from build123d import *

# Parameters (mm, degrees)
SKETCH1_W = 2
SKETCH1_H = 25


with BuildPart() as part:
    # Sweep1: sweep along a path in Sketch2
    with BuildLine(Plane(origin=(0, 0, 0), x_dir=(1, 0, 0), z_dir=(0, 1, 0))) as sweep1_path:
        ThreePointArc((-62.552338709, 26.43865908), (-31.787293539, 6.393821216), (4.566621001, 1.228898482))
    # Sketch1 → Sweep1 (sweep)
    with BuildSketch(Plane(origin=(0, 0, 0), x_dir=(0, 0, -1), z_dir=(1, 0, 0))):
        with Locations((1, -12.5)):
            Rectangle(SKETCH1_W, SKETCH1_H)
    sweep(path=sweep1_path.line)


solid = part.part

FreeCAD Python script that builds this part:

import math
import FreeCAD as App
import Part
import Sketcher

doc = App.newDocument("Part")
params = doc.addObject("Spreadsheet::Sheet", "Params")
for row, (alias, value) in enumerate([
    ("sketch1_width", "25 mm"),
    ("sketch1_height", "2 mm"),
], start=1):
    params.set(f"A{row}", alias)
    params.set(f"B{row}", "=" + value)
    params.setAlias(f"B{row}", alias)

body = doc.addObject("PartDesign::Body", "Body")

# Sketch on YZ plane
sketch1 = body.newObject("Sketcher::SketchObject", "Sketch")
sketch1.AttachmentSupport = (doc.getObject("YZ_Plane"), [""])
sketch1.MapMode = "FlatFace"
sketch1.addGeometry([
    Part.LineSegment(App.Vector(0, 0, 0), App.Vector(-25, 0, 0)),
    Part.LineSegment(App.Vector(-25, 0, 0), App.Vector(-25, -2, 0)),
    Part.LineSegment(App.Vector(-25, -2, 0), App.Vector(0, -2, 0)),
    Part.LineSegment(App.Vector(0, -2, 0), App.Vector(0, 0, 0)),
], False)
sketch1.addConstraint([
    Sketcher.Constraint("Coincident", 0, 2, 1, 1),
    Sketcher.Constraint("Coincident", 1, 2, 2, 1),
    Sketcher.Constraint("Coincident", 2, 2, 3, 1),
    Sketcher.Constraint("Coincident", 3, 2, 0, 1),
    Sketcher.Constraint("Horizontal", 0),
    Sketcher.Constraint("Vertical", 1),
    Sketcher.Constraint("Horizontal", 2),
    Sketcher.Constraint("Vertical", 3),
    Sketcher.Constraint("Coincident", 3, 2, -1, 1),
    Sketcher.Constraint("DistanceX", 0, 2, 0, 1, 25.0),
    Sketcher.Constraint("DistanceY", 1, 2, 1, 1, 2.0),
])
sketch1.setExpression("Constraints[9]", "Params.sketch1_width")
sketch1.setExpression("Constraints[10]", "Params.sketch1_height")

# Sketch on XZ plane
sketch2 = body.newObject("Sketcher::SketchObject", "Sketch001")
sketch2.AttachmentSupport = (doc.getObject("XZ_Plane"), [""])
sketch2.MapMode = "FlatFace"
sketch2.addGeometry(Part.ArcOfCircle(Part.Circle(App.Vector(-2, -86, 0), App.Vector(0, 0, 1), 85), math.radians(86), math.radians(136)), False)
sketch2.addConstraint([
    Sketcher.Constraint("Radius", 0, 84.825),
    Sketcher.Constraint("DistanceY", 0, 1, -1, 1, 1.228898),
    Sketcher.Constraint("DistanceX", -1, 1, 0, 1, 4.566621),
    Sketcher.Constraint("DistanceX", 0, 2, -1, 1, 62.552339),
    Sketcher.Constraint("DistanceY", 0, 2, -1, 1, 26.438659),
])
doc.recompute()

additivepipe = body.newObject("PartDesign::AdditivePipe", "AdditivePipe")
additivepipe.Profile = sketch1
additivepipe.Spine = (sketch2, ["Edge1"])

doc.recompute()
